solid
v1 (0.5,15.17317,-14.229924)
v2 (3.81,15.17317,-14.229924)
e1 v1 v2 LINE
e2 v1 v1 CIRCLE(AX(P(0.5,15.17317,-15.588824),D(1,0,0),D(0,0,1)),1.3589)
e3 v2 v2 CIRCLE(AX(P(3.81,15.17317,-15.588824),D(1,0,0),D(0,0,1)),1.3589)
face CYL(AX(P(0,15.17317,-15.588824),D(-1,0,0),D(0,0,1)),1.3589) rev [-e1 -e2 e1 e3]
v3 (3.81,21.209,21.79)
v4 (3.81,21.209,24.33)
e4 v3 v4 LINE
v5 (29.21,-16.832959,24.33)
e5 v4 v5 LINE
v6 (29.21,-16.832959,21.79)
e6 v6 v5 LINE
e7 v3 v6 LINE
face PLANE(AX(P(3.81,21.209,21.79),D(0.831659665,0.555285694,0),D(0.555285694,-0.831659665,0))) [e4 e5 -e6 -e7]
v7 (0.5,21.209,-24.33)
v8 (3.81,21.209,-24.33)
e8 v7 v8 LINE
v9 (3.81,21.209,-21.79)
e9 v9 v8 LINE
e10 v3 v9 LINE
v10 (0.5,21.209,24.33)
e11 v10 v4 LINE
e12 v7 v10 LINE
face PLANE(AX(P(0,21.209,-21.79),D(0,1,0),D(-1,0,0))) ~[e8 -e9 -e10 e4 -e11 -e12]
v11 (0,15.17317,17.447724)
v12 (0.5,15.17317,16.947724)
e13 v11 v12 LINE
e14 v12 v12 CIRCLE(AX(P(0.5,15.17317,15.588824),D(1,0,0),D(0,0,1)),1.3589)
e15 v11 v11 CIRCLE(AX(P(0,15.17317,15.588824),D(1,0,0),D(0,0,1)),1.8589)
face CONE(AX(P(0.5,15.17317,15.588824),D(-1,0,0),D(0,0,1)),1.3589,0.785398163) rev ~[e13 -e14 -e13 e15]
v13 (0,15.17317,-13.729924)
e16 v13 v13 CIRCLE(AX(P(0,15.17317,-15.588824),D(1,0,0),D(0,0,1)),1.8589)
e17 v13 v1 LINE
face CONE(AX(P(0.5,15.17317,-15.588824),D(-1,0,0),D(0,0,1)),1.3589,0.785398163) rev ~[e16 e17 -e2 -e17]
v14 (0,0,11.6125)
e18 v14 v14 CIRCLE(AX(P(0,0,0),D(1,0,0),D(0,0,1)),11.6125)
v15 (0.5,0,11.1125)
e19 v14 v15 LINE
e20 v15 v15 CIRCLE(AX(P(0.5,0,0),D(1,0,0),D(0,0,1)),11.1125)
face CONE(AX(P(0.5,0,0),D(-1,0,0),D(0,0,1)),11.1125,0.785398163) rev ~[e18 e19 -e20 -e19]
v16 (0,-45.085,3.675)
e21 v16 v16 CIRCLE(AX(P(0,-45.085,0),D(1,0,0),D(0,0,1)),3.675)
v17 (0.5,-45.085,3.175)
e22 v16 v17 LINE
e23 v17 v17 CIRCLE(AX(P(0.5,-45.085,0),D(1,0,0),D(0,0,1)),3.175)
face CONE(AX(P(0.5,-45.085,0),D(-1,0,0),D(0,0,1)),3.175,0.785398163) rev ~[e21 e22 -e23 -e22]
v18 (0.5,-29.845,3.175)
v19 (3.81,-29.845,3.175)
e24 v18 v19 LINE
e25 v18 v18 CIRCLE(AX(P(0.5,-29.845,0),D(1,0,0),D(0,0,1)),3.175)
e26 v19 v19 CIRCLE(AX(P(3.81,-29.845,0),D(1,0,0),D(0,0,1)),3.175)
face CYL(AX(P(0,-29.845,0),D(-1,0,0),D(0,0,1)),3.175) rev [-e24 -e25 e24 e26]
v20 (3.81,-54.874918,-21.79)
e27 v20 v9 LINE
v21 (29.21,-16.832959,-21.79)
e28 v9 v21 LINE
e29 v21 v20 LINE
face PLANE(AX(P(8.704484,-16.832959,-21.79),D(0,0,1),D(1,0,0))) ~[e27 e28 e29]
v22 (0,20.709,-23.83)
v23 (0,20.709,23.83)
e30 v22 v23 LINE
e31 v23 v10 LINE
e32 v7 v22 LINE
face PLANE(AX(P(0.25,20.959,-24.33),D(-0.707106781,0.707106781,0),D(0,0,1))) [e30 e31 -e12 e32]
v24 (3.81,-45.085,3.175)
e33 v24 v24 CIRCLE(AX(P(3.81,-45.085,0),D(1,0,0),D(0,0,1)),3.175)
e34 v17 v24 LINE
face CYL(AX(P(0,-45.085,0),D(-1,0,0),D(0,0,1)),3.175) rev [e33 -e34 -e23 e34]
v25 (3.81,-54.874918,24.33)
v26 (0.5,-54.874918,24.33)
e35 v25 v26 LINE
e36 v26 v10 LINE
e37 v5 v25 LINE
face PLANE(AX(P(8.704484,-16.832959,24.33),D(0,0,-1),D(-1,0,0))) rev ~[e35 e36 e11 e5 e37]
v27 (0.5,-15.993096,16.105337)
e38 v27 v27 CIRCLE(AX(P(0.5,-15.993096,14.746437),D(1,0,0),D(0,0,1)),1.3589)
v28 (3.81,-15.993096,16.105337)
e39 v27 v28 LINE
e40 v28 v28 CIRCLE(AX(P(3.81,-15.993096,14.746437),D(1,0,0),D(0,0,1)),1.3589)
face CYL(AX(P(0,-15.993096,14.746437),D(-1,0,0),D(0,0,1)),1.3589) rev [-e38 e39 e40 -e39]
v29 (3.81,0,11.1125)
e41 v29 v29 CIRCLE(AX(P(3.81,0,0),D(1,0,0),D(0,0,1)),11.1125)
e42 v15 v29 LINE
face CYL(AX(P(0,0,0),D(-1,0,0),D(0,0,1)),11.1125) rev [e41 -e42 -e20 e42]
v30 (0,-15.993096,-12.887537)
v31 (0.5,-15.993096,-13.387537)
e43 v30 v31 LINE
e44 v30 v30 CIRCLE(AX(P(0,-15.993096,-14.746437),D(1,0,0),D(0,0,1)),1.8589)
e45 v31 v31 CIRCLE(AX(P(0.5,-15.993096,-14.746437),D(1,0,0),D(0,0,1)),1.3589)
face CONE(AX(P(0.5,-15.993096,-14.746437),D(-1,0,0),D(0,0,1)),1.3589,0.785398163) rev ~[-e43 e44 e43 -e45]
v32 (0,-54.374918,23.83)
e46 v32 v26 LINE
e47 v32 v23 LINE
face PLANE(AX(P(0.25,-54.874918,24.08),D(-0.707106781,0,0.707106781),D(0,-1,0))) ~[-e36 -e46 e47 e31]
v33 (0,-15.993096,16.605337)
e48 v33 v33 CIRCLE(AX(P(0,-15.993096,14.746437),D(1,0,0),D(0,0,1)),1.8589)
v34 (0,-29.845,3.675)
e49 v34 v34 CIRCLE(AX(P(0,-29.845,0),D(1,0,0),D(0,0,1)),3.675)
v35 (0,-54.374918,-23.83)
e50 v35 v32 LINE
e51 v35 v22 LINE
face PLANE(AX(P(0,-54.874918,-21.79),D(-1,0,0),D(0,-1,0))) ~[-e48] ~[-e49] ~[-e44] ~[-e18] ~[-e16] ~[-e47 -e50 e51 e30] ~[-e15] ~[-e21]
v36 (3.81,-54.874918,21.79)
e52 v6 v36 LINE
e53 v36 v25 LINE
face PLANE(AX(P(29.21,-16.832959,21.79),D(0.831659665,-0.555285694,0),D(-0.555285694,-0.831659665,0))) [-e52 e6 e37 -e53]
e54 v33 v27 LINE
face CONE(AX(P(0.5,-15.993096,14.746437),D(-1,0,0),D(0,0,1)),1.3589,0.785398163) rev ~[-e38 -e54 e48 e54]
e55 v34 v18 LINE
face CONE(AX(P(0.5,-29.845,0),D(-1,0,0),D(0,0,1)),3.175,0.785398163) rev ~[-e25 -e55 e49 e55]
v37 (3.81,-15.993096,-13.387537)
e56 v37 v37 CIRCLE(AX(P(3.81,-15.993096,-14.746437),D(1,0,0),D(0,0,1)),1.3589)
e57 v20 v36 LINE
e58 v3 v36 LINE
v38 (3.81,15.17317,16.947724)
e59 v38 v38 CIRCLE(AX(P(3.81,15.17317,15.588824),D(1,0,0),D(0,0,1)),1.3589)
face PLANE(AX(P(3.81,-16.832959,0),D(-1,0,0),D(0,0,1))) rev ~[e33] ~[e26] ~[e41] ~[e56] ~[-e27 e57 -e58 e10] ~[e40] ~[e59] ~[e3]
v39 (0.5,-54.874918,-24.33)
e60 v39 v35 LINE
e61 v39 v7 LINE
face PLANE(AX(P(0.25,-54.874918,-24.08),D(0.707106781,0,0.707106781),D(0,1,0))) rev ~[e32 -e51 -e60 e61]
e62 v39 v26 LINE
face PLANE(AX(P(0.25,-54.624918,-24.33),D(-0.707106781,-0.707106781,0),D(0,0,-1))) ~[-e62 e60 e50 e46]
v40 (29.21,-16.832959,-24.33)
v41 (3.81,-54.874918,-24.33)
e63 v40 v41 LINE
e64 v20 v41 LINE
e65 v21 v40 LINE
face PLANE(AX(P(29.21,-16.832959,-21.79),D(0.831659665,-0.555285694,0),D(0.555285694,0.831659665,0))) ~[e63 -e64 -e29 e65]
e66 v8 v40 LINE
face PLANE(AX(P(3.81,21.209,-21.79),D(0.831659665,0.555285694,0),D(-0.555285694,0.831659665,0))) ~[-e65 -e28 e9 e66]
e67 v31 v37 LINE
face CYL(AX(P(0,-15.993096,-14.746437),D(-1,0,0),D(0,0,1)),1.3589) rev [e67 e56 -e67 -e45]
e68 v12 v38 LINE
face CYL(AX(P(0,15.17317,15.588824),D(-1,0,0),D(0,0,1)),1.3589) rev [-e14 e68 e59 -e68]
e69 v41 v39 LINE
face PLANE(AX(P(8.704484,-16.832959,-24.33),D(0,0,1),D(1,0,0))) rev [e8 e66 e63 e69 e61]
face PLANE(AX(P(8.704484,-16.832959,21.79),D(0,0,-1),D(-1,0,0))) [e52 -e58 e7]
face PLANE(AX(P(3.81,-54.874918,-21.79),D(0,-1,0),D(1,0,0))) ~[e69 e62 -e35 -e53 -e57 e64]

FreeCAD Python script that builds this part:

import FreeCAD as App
import Part
import Sketcher

V = App.Vector
Q = App.Units.Quantity


def edges_at(feature, points):
    """Names of the edges that pass closest to the given points."""
    edges = feature.Shape.Edges
    near = lambda p: min(range(len(edges)), key=lambda i: edges[i].distToShape(Part.Vertex(*p))[0])
    return sorted({f"Edge{near(p) + 1}" for p in points})

doc = App.newDocument("Part")
body = doc.addObject("PartDesign::Body", "Body")

sketch1 = doc.addObject("Sketcher::SketchObject", "Sketch")
body.addObject(sketch1)
sketch1.AttachmentSupport = (doc.YZ_Plane, [""])
sketch1.MapMode = "FlatFace"
sketch1.addGeometry([
    Part.LineSegment(V(-54.9, -21.8, 0), V(21.2, -21.8, 0)),
    Part.LineSegment(V(21.2, -21.8, 0), V(21.2, 21.8, 0)),
    Part.LineSegment(V(21.2, 21.8, 0), V(-54.9, 21.8, 0)),
    Part.LineSegment(V(-54.9, 21.8, 0), V(-54.9, -21.8, 0)),
    Part.Circle(V(-16, -14.7, 0), V(0, 0, 1), 1.4),
    Part.Circle(V(-45.1, 0, 0), V(0, 0, 1), 3.2),
    Part.Circle(V(-29.8, 0, 0), V(0, 0, 1), 3.2),
    Part.Circle(V(-16, 14.7, 0), V(0, 0, 1), 1.4),
    Part.Circle(V(15.2, -15.6, 0), V(0, 0, 1), 1.4),
    Part.Circle(V(0, 0, 0), V(0, 0, 1), 11.1),
    Part.Circle(V(15.2, 15.6, 0), V(0, 0, 1), 1.4),
], False)
sketch1.addConstraint([
    Sketcher.Constraint("Coincident", 0, 2, 1, 1),
    Sketcher.Constraint("Coincident", 1, 2, 2, 1),
    Sketcher.Constraint("Coincident", 2, 2, 3, 1),
    Sketcher.Constraint("Coincident", 3, 2, 0, 1),
    Sketcher.Constraint("Horizontal", 0),
    Sketcher.Constraint("Vertical", 1),
    Sketcher.Constraint("Horizontal", 2),
    Sketcher.Constraint("Vertical", 3),
    Sketcher.Constraint("Coincident", 9, 3, -1, 1),
    Sketcher.Constraint("Equal", 5, 6),
    Sketcher.Constraint("Equal", 4, 7),
    Sketcher.Constraint("Equal", 7, 8),
    Sketcher.Constraint("Equal", 8, 10),
    Sketcher.Constraint("Symmetric", 4, 3, 7, 3, -1),
    Sketcher.Constraint("Symmetric", 8, 3, 10, 3, -1),
    Sketcher.Constraint("PointOnObject", 5, 3, -1),
    Sketcher.Constraint("PointOnObject", 6, 3, -1),
    Sketcher.Constraint("Diameter", 5, Q("0.25 in")),
    Sketcher.Constraint("Diameter", 4, Q("0.107 in")),
    Sketcher.Constraint("Diameter", 9, Q("0.875 in")),
    Sketcher.Constraint("DistanceX", 5, 3, 6, 3, Q("0.6 in")),
    Sketcher.Constraint("DistanceX", 5, 3, -1, 1, Q("1.775 in")),
    Sketcher.Constraint("DistanceX", -1, 1, 0, 2, Q("0.835 in")),
    Sketcher.Constraint("DistanceY", 1, 1, 1, 2, Q("43.58 mm")),
    Sketcher.Constraint("DistanceY", 0, 2, -1, 1, Q("21.79 mm")),
    Sketcher.Constraint("DistanceX", 0, 1, 0, 2, Q("76.083918 mm")),
    Sketcher.Constraint("DistanceX", -1, 1, 8, 3, Q("15.17317 mm")),
    Sketcher.Constraint("DistanceY", 8, 3, 7, 3, Q("30.335261 mm")),
    Sketcher.Constraint("DistanceY", 8, 3, 10, 3, Q("31.177648 mm")),
    Sketcher.Constraint("DistanceX", 2, 2, 7, 3, Q("38.881821 mm")),
])
pad1 = doc.addObject("PartDesign::Pad", "Pad")
body.addObject(pad1)
pad1.Profile = sketch1
pad1.Length = Q("0.15 in")

sketch2 = doc.addObject("Sketcher::SketchObject", "Sketch001")
body.addObject(sketch2)
sketch2.AttachmentSupport = (doc.XY_Plane, [""])
sketch2.MapMode = "FlatFace"
sketch2.AttachmentOffset = App.Placement(V(0, 0, 21.79), App.Rotation())
sketch2.addGeometry([
    Part.LineSegment(V(29.2, -16.8, 0), V(3.8, 21.2, 0)),
    Part.LineSegment(V(3.8, 21.2, 0), V(0, 21.2, 0)),
    Part.LineSegment(V(0, 21.2, 0), V(0, -54.9, 0)),
    Part.LineSegment(V(0, -54.9, 0), V(3.8, -54.9, 0)),
    Part.LineSegment(V(3.8, -54.9, 0), V(29.2, -16.8, 0)),
], False)
sketch2.addConstraint([
    Sketcher.Constraint("Coincident", 0, 2, 1, 1),
    Sketcher.Constraint("Coincident", 1, 2, 2, 1),
    Sketcher.Constraint("Coincident", 2, 2, 3, 1),
    Sketcher.Constraint("Coincident", 3, 2, 4, 1),
    Sketcher.Constraint("Coincident", 4, 2, 0, 1),
    Sketcher.Constraint("Horizontal", 1),
    Sketcher.Constraint("Vertical", 2),
    Sketcher.Constraint("Horizontal", 3),
    Sketcher.Constraint("PointOnObject", 1, 2, -2),
    Sketcher.Constraint("Vertical", 0, 2, 3, 2),
    Sketcher.Constraint("Equal", 0, 4),
    Sketcher.Constraint("DistanceX", 0, 2, 4, 2, Q("1 in")),
    Sketcher.Constraint("DistanceX", 1, 2, 1, 1, Q("0.15 in")),
    Sketcher.Constraint("DistanceY", -1, 1, 0, 2, Q("0.835 in")),
    Sketcher.Constraint("Distance", 0, Q("45.742219 mm")),
])
pad2 = doc.addObject("PartDesign::Pad", "Pad001")
body.addObject(pad2)
pad2.Profile = sketch2
pad2.Length = Q("0.1 in")
doc.recompute()

mirrored = doc.addObject("PartDesign::Mirrored", "Mirrored")
body.addObject(mirrored)
mirrored.Originals = [pad2]
mirrored.MirrorPlane = (doc.XY_Plane, [""])
body.Tip = mirrored
doc.recompute()

chamfer = doc.addObject("PartDesign::Chamfer", "Chamfer")
body.addObject(chamfer)
chamfer.Base = (mirrored, edges_at(mirrored, [
    (0, 0, -11.113),
    (0, 15.173, -16.948),
    (0, 15.173, 14.23),
    (0, -15.993, 13.388),
    (0, -15.993, -16.105),
    (0, -29.845, -3.175),
    (0, -45.085, -3.175),
    (0, -16.833, 24.33),
    (0, -16.833, -24.33),
    (0, -54.875, 0),
    (0, 21.209, 0),
]))
chamfer.Size = 0.5

doc.recompute()
